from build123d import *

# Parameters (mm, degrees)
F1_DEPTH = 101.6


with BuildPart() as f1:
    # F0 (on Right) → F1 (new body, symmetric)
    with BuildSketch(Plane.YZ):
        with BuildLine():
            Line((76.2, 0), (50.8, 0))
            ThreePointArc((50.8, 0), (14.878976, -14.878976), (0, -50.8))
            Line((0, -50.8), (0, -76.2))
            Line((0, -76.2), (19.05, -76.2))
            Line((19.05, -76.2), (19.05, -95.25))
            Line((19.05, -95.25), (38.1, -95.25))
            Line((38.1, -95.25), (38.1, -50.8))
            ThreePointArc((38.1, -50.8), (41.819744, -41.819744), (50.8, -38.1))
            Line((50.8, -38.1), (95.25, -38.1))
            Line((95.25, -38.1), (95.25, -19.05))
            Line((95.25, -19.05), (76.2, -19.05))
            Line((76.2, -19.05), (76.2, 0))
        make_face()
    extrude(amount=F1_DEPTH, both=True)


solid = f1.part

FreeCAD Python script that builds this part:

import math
import FreeCAD as App
import Part
import Sketcher
from FreeCAD import Vector
Q = App.Units.Quantity

doc = App.newDocument("Part")
params = doc.addObject("Spreadsheet::Sheet", "Params")
for row, (alias, value) in enumerate([
    ("sketch1_radius", "2.0000001 in"),
    ("sketch1_radius2", "0.5 in"),
    ("sketch1_width", "1 in"),
    ("pad1_length", "8 in"),
], start=1):
    params.set(f"A{row}", alias)
    params.set(f"B{row}", "=" + value)
    params.setAlias(f"B{row}", alias)

body = doc.addObject("PartDesign::Body", "Body")

# Sketch on YZ plane
sketch1 = doc.addObject("Sketcher::SketchObject", "Sketch")
body.addObject(sketch1)
sketch1.AttachmentSupport = (doc.YZ_Plane, [""])
sketch1.MapMode = "FlatFace"
sketch1.addGeometry([
    Part.LineSegment(Vector(76, 0, 0), Vector(51, 0, 0)),  # 0
    Part.ArcOfCircle(Part.Circle(Vector(51, -51, 0), Vector(0, 0, 1), 51), math.radians(90), math.radians(180)),  # 1
    Part.LineSegment(Vector(0, -51, 0), Vector(0, -76, 0)),  # 2
    Part.LineSegment(Vector(0, -76, 0), Vector(19, -76, 0)),  # 3
    Part.LineSegment(Vector(19, -76, 0), Vector(19, -95, 0)),  # 4
    Part.LineSegment(Vector(19, -95, 0), Vector(38, -95, 0)),  # 5
    Part.LineSegment(Vector(38, -95, 0), Vector(38, -51, 0)),  # 6
    Part.ArcOfCircle(Part.Circle(Vector(51, -51, 0), Vector(0, 0, 1), 13), math.radians(90), math.radians(180)),  # 7
    Part.LineSegment(Vector(51, -38, 0), Vector(95, -38, 0)),  # 8
    Part.LineSegment(Vector(95, -38, 0), Vector(95, -19, 0)),  # 9
    Part.LineSegment(Vector(95, -19, 0), Vector(76, -19, 0)),  # 10
    Part.LineSegment(Vector(76, -19, 0), Vector(76, 0, 0)),  # 11
], False)
sketch1.addConstraint([
    Sketcher.Constraint("Tangent", 0, 2, 1, 1),
    Sketcher.Constraint("Tangent", 1, 2, 2, 1),
    Sketcher.Constraint("Coincident", 2, 2, 3, 1),
    Sketcher.Constraint("Coincident", 3, 2, 4, 1),
    Sketcher.Constraint("Coincident", 4, 2, 5, 1),
    Sketcher.Constraint("Coincident", 5, 2, 6, 1),
    Sketcher.Constraint("Tangent", 6, 2, 7, 2),
    Sketcher.Constraint("Tangent", 7, 1, 8, 1),
    Sketcher.Constraint("Coincident", 8, 2, 9, 1),
    Sketcher.Constraint("Coincident", 9, 2, 10, 1),
    Sketcher.Constraint("Coincident", 10, 2, 11, 1),
    Sketcher.Constraint("Coincident", 11, 2, 0, 1),
    Sketcher.Constraint("Horizontal", 0),
    Sketcher.Constraint("Vertical", 2),
    Sketcher.Constraint("Horizontal", 3),
    Sketcher.Constraint("Vertical", 4),
    Sketcher.Constraint("Horizontal", 5),
    Sketcher.Constraint("Vertical", 6),
    Sketcher.Constraint("Horizontal", 8),
    Sketcher.Constraint("Vertical", 9),
    Sketcher.Constraint("Horizontal", 10),
    Sketcher.Constraint("Vertical", 11),
    Sketcher.Constraint("Coincident", 7, 3, 1, 3),
    Sketcher.Constraint("PointOnObject", 0, 2, -1),
    Sketcher.Constraint("PointOnObject", 1, 2, -2),
    Sketcher.Constraint("Equal", 3, 5),
    Sketcher.Constraint("Equal", 5, 10),
    Sketcher.Constraint("Equal", 0, 2),
    Sketcher.Constraint("Equal", 10, 4),
    Sketcher.Constraint("Equal", 4, 9),
    Sketcher.Constraint("Radius", 1, Q("2.0000001 in")),
    Sketcher.Constraint("Radius", 7, Q("0.5 in")),
    Sketcher.Constraint("DistanceX", 0, 2, 0, 1, Q("1 in")),
])
sketch1.setExpression("Constraints[30]", "Params.sketch1_radius")
sketch1.setExpression("Constraints[31]", "Params.sketch1_radius2")
sketch1.setExpression("Constraints[32]", "Params.sketch1_width")
pad1 = doc.addObject("PartDesign::Pad", "Pad")
body.addObject(pad1)
pad1.Profile = sketch1
pad1.setExpression("Length", "Params.pad1_length")
pad1.Midplane = True

doc.recompute()
